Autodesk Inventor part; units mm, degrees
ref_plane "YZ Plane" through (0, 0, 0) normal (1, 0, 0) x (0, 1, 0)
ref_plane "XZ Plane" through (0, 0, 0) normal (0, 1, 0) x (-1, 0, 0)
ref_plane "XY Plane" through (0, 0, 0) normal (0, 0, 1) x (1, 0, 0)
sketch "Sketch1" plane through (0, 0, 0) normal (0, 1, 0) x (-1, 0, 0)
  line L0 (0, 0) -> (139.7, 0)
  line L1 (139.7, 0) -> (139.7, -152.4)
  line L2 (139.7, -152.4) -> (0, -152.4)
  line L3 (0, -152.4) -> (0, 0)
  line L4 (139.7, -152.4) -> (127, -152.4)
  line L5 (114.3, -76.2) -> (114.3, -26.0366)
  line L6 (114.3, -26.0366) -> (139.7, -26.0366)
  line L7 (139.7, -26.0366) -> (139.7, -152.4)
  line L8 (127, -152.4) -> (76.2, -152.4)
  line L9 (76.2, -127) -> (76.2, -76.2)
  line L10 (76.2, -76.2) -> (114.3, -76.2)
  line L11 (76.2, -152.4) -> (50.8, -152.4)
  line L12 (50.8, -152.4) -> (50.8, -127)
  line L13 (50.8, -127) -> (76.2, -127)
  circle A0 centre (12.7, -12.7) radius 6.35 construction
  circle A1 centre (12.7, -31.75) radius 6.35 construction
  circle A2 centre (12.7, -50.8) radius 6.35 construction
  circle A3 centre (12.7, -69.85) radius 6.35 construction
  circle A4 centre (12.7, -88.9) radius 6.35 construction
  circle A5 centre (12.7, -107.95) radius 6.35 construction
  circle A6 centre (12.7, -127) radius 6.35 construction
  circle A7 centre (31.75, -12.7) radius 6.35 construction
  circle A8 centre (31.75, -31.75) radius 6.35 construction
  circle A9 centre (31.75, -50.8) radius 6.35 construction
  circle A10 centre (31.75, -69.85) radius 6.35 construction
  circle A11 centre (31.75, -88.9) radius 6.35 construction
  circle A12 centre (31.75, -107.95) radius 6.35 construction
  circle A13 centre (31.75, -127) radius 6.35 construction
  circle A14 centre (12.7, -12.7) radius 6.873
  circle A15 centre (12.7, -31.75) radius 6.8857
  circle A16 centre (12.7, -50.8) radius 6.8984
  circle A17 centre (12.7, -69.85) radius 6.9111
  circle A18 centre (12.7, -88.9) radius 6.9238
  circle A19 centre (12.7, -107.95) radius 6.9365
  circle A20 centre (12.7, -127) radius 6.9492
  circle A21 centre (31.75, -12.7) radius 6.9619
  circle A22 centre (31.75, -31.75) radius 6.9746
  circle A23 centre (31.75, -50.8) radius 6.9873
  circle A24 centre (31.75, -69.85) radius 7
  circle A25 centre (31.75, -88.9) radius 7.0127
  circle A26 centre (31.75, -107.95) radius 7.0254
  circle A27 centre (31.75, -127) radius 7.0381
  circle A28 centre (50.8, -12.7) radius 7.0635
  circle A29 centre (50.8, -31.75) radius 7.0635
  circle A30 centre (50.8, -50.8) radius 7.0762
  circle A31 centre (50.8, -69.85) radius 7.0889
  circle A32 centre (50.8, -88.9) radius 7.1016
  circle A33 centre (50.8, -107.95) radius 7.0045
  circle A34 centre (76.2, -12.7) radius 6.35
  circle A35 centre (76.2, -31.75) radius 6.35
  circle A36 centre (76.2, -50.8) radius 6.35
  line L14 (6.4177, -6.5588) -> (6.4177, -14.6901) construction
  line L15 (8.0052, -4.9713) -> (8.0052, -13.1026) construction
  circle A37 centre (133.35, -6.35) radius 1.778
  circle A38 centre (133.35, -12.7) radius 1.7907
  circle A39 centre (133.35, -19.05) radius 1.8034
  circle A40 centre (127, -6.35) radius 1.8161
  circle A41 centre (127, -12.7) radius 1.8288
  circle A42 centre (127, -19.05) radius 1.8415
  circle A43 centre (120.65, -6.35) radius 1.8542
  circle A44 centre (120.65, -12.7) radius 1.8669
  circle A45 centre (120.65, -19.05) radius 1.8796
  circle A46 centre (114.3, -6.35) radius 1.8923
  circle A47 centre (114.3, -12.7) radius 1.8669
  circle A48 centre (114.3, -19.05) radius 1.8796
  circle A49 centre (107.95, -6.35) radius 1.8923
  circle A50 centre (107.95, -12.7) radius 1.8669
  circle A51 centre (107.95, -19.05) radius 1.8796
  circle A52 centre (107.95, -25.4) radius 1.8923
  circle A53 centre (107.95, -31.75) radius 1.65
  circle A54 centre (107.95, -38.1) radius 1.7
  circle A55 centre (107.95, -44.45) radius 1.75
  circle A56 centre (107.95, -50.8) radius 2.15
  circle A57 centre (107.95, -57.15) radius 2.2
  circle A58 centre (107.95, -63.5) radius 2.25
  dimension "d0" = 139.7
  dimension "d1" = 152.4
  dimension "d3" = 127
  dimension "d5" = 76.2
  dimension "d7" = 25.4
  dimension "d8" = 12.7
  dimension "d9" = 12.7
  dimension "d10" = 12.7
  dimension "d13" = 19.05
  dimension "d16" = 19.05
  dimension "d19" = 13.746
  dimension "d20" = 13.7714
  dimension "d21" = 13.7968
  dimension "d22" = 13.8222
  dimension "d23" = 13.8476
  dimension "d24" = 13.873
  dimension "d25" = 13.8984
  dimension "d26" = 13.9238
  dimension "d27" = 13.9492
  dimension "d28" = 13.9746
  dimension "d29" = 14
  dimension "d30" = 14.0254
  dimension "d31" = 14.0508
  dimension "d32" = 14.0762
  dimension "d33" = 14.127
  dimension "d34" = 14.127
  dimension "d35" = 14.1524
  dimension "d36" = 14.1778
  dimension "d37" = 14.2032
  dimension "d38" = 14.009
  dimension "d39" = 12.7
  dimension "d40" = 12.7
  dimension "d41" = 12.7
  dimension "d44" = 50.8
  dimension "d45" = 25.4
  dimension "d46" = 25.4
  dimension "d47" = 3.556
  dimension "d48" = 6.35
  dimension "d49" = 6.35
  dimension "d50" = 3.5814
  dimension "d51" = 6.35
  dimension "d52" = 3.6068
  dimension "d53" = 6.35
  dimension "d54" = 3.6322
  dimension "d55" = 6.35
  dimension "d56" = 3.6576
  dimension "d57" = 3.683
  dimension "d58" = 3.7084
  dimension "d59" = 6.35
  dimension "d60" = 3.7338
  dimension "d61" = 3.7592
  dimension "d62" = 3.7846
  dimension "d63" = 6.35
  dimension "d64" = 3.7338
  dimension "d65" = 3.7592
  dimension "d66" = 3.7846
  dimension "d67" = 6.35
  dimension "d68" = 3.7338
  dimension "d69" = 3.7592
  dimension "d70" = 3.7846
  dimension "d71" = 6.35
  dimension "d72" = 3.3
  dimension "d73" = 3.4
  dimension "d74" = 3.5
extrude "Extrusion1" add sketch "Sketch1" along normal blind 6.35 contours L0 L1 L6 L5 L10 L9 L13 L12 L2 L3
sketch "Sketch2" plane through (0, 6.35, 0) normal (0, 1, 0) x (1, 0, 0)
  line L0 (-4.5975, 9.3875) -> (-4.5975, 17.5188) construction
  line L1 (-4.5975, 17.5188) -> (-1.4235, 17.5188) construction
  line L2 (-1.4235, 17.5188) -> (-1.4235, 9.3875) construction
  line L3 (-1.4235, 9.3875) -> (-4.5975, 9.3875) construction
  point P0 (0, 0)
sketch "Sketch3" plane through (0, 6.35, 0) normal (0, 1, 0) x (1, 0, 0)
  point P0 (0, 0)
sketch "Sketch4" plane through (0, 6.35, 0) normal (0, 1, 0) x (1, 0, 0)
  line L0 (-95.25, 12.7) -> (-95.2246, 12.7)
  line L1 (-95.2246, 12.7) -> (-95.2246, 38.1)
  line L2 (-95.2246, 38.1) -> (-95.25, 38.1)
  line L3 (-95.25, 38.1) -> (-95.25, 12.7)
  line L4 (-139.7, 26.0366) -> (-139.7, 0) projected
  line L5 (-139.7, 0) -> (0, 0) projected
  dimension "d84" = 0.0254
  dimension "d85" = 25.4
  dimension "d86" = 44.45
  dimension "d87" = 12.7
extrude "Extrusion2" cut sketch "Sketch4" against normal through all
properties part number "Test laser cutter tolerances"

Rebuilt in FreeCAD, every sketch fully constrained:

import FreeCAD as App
import Part
import Sketcher
Q = App.Units.Quantity


def add_polygon(sketch, points):
    """Adds a closed chain of lines whose ends are joined by coincident constraints."""
    first, n = sketch.GeometryCount, len(points)
    for a, b in zip(points, points[1:] + points[:1]):
        sketch.addGeometry(Part.LineSegment(App.Vector(*a, 0), App.Vector(*b, 0)), False)
    for i in range(n):
        sketch.addConstraint(Sketcher.Constraint("Coincident", first + i, 2, first + (i + 1) % n, 1))

doc = App.newDocument("Part")
params = doc.addObject("Spreadsheet::Sheet", "Params")
for row, (alias, value) in enumerate([
    ("sketch1_diameter", "0.5 in"),
    ("sketch1_diameter2", "0.14 in"),
    ("sketch1_width", "2 in"),
    ("sketch1_width2", "1 in"),
    ("sketch1_height", "6 in"),
    ("pad1_length", "0.25 in"),
    ("sketch2_height", "1 in"),
    ("sketch2_width", "0.001 in"),
], start=1):
    params.set(f"A{row}", alias)
    params.set(f"B{row}", "=" + value)
    params.setAlias(f"B{row}", alias)

body = doc.addObject("PartDesign::Body", "Body")

# Sketch on XZ plane
sketch1 = body.newObject("Sketcher::SketchObject", "Sketch")
sketch1.AttachmentSupport = (doc.getObject("XZ_Plane"), [""])
sketch1.MapMode = "FlatFace"
add_polygon(sketch1, [(-139.7, 0), (0, 0), (0, -152.4), (-50.8, -152.4), (-50.8, -127), (-76.2, -127), (-76.2, -76.2), (-114.3, -76.2), (-114.3, -26.0366), (-139.7, -26.0366)])  # lines 0-9
sketch1.addGeometry(Part.Circle(App.Vector(-12.7, -127, 0), App.Vector(0, 0, 1), 6.9492), False)  # 10
sketch1.addGeometry(Part.Circle(App.Vector(-31.75, -127, 0), App.Vector(0, 0, 1), 7.0381), False)  # 11
sketch1.addGeometry(Part.Circle(App.Vector(-12.7, -107.95, 0), App.Vector(0, 0, 1), 6.9365), False)  # 12
sketch1.addGeometry(Part.Circle(App.Vector(-31.75, -107.95, 0), App.Vector(0, 0, 1), 7.0254), False)  # 13
sketch1.addGeometry(Part.Circle(App.Vector(-12.7, -88.9, 0), App.Vector(0, 0, 1), 6.9238), False)  # 14
sketch1.addGeometry(Part.Circle(App.Vector(-31.75, -88.9, 0), App.Vector(0, 0, 1), 7.0127), False)  # 15
sketch1.addGeometry(Part.Circle(App.Vector(-50.8, -107.95, 0), App.Vector(0, 0, 1), 7.0045), False)  # 16
sketch1.addGeometry(Part.Circle(App.Vector(-50.8, -88.9, 0), App.Vector(0, 0, 1), 7.1016), False)  # 17
sketch1.addGeometry(Part.Circle(App.Vector(-12.7, -69.85, 0), App.Vector(0, 0, 1), 6.9111), False)  # 18
sketch1.addGeometry(Part.Circle(App.Vector(-31.75, -69.85, 0), App.Vector(0, 0, 1), 7), False)  # 19
sketch1.addGeometry(Part.Circle(App.Vector(-12.7, -50.8, 0), App.Vector(0, 0, 1), 6.8984), False)  # 20
sketch1.addGeometry(Part.Circle(App.Vector(-31.75, -50.8, 0), App.Vector(0, 0, 1), 6.9873), False)  # 21
sketch1.addGeometry(Part.Circle(App.Vector(-50.8, -69.85, 0), App.Vector(0, 0, 1), 7.0889), False)  # 22
sketch1.addGeometry(Part.Circle(App.Vector(-50.8, -50.8, 0), App.Vector(0, 0, 1), 7.0762), False)  # 23
sketch1.addGeometry(Part.Circle(App.Vector(-12.7, -31.75, 0), App.Vector(0, 0, 1), 6.8857), False)  # 24
sketch1.addGeometry(Part.Circle(App.Vector(-31.75, -31.75, 0), App.Vector(0, 0, 1), 6.9746), False)  # 25
sketch1.addGeometry(Part.Circle(App.Vector(-12.7, -12.7, 0), App.Vector(0, 0, 1), 6.873), False)  # 26
sketch1.addGeometry(Part.Circle(App.Vector(-31.75, -12.7, 0), App.Vector(0, 0, 1), 6.9619), False)  # 27
sketch1.addGeometry(Part.Circle(App.Vector(-50.8, -31.75, 0), App.Vector(0, 0, 1), 7.0635), False)  # 28
sketch1.addGeometry(Part.Circle(App.Vector(-50.8, -12.7, 0), App.Vector(0, 0, 1), 7.0635), False)  # 29
sketch1.addGeometry(Part.Circle(App.Vector(-76.2, -50.8, 0), App.Vector(0, 0, 1), 6.35), False)  # 30
sketch1.addGeometry(Part.Circle(App.Vector(-107.95, -63.5, 0), App.Vector(0, 0, 1), 2.25), False)  # 31
sketch1.addGeometry(Part.Circle(App.Vector(-107.95, -57.15, 0), App.Vector(0, 0, 1), 2.2), False)  # 32
sketch1.addGeometry(Part.Circle(App.Vector(-107.95, -50.8, 0), App.Vector(0, 0, 1), 2.15), False)  # 33
sketch1.addGeometry(Part.Circle(App.Vector(-107.95, -44.45, 0), App.Vector(0, 0, 1), 1.75), False)  # 34
sketch1.addGeometry(Part.Circle(App.Vector(-76.2, -31.75, 0), App.Vector(0, 0, 1), 6.35), False)  # 35
sketch1.addGeometry(Part.Circle(App.Vector(-76.2, -12.7, 0), App.Vector(0, 0, 1), 6.35), False)  # 36
sketch1.addGeometry(Part.Circle(App.Vector(-107.95, -38.1, 0), App.Vector(0, 0, 1), 1.7), False)  # 37
sketch1.addGeometry(Part.Circle(App.Vector(-107.95, -31.75, 0), App.Vector(0, 0, 1), 1.65), False)  # 38
sketch1.addGeometry(Part.Circle(App.Vector(-107.95, -25.4, 0), App.Vector(0, 0, 1), 1.8923), False)  # 39
sketch1.addGeometry(Part.Circle(App.Vector(-107.95, -19.05, 0), App.Vector(0, 0, 1), 1.8796), False)  # 40
sketch1.addGeometry(Part.Circle(App.Vector(-107.95, -12.7, 0), App.Vector(0, 0, 1), 1.8669), False)  # 41
sketch1.addGeometry(Part.Circle(App.Vector(-114.3, -19.05, 0), App.Vector(0, 0, 1), 1.8796), False)  # 42
sketch1.addGeometry(Part.Circle(App.Vector(-120.65, -19.05, 0), App.Vector(0, 0, 1), 1.8796), False)  # 43
sketch1.addGeometry(Part.Circle(App.Vector(-114.3, -12.7, 0), App.Vector(0, 0, 1), 1.8669), False)  # 44
sketch1.addGeometry(Part.Circle(App.Vector(-120.65, -12.7, 0), App.Vector(0, 0, 1), 1.8669), False)  # 45
sketch1.addGeometry(Part.Circle(App.Vector(-107.95, -6.35, 0), App.Vector(0, 0, 1), 1.8923), False)  # 46
sketch1.addGeometry(Part.Circle(App.Vector(-114.3, -6.35, 0), App.Vector(0, 0, 1), 1.8923), False)  # 47
sketch1.addGeometry(Part.Circle(App.Vector(-120.65, -6.35, 0), App.Vector(0, 0, 1), 1.8542), False)  # 48
sketch1.addGeometry(Part.Circle(App.Vector(-127, -19.05, 0), App.Vector(0, 0, 1), 1.8415), False)  # 49
sketch1.addGeometry(Part.Circle(App.Vector(-127, -12.7, 0), App.Vector(0, 0, 1), 1.8288), False)  # 50
sketch1.addGeometry(Part.Circle(App.Vector(-133.35, -19.05, 0), App.Vector(0, 0, 1), 1.8034), False)  # 51
sketch1.addGeometry(Part.Circle(App.Vector(-133.35, -12.7, 0), App.Vector(0, 0, 1), 1.7907), False)  # 52
sketch1.addGeometry(Part.Circle(App.Vector(-127, -6.35, 0), App.Vector(0, 0, 1), 1.8161), False)  # 53
sketch1.addGeometry(Part.Circle(App.Vector(-133.35, -6.35, 0), App.Vector(0, 0, 1), 1.778), False)  # 54
sketch1.addConstraint([
    Sketcher.Constraint("Horizontal", 0),
    Sketcher.Constraint("Vertical", 1),
    Sketcher.Constraint("Horizontal", 2),
    Sketcher.Constraint("Vertical", 3),
    Sketcher.Constraint("Horizontal", 4),
    Sketcher.Constraint("Vertical", 5),
    Sketcher.Constraint("Horizontal", 6),
    Sketcher.Constraint("Vertical", 7),
    Sketcher.Constraint("Horizontal", 8),
    Sketcher.Constraint("Vertical", 9),
    Sketcher.Constraint("Coincident", 0, 2, -1, 1),
    Sketcher.Constraint("Equal", 28, 29),
    Sketcher.Constraint("Equal", 30, 35),
    Sketcher.Constraint("Equal", 35, 36),
    Sketcher.Constraint("Equal", 40, 42),
    Sketcher.Constraint("Equal", 42, 43),
    Sketcher.Constraint("Equal", 41, 44),
    Sketcher.Constraint("Equal", 44, 45),
    Sketcher.Constraint("Equal", 39, 46),
    Sketcher.Constraint("Equal", 46, 47),
    Sketcher.Constraint("Horizontal", 10, 3, 11, 3),
    Sketcher.Constraint("Horizontal", 12, 3, 13, 3),
    Sketcher.Constraint("Horizontal", 14, 3, 15, 3),
    Sketcher.Constraint("Horizontal", 13, 3, 16, 3),
    Sketcher.Constraint("Horizontal", 15, 3, 17, 3),
    Sketcher.Constraint("Horizontal", 18, 3, 19, 3),
    Sketcher.Constraint("Horizontal", 20, 3, 21, 3),
    Sketcher.Constraint("Horizontal", 19, 3, 22, 3),
    Sketcher.Constraint("Horizontal", 21, 3, 23, 3),
    Sketcher.Constraint("Horizontal", 24, 3, 25, 3),
    Sketcher.Constraint("Horizontal", 26, 3, 27, 3),
    Sketcher.Constraint("Horizontal", 25, 3, 28, 3),
    Sketcher.Constraint("Horizontal", 27, 3, 29, 3),
    Sketcher.Constraint("Horizontal", 23, 3, 30, 3),
    Sketcher.Constraint("Horizontal", 30, 3, 33, 3),
    Sketcher.Constraint("Horizontal", 28, 3, 35, 3),
    Sketcher.Constraint("Horizontal", 29, 3, 36, 3),
    Sketcher.Constraint("Horizontal", 35, 3, 38, 3),
    Sketcher.Constraint("Horizontal", 36, 3, 41, 3),
    Sketcher.Constraint("Horizontal", 40, 3, 42, 3),
    Sketcher.Constraint("Horizontal", 42, 3, 43, 3),
    Sketcher.Constraint("Horizontal", 41, 3, 44, 3),
    Sketcher.Constraint("Horizontal", 44, 3, 45, 3),
    Sketcher.Constraint("Horizontal", 46, 3, 47, 3),
    Sketcher.Constraint("Horizontal", 47, 3, 48, 3),
    Sketcher.Constraint("Horizontal", 43, 3, 49, 3),
    Sketcher.Constraint("Horizontal", 45, 3, 50, 3),
    Sketcher.Constraint("Horizontal", 49, 3, 51, 3),
    Sketcher.Constraint("Horizontal", 50, 3, 52, 3),
    Sketcher.Constraint("Horizontal", 48, 3, 53, 3),
    Sketcher.Constraint("Horizontal", 53, 3, 54, 3),
    Sketcher.Constraint("Horizontal", 11, 3, 3, 2),
    Sketcher.Constraint("Vertical", 10, 3, 12, 3),
    Sketcher.Constraint("Vertical", 11, 3, 13, 3),
    Sketcher.Constraint("Vertical", 12, 3, 14, 3),
    Sketcher.Constraint("Vertical", 13, 3, 15, 3),
    Sketcher.Constraint("Vertical", 16, 3, 17, 3),
    Sketcher.Constraint("Vertical", 14, 3, 18, 3),
    Sketcher.Constraint("Vertical", 15, 3, 19, 3),
    Sketcher.Constraint("Vertical", 18, 3, 20, 3),
    Sketcher.Constraint("Vertical", 19, 3, 21, 3),
    Sketcher.Constraint("Vertical", 17, 3, 22, 3),
    Sketcher.Constraint("Vertical", 22, 3, 23, 3),
    Sketcher.Constraint("Vertical", 20, 3, 24, 3),
    Sketcher.Constraint("Vertical", 21, 3, 25, 3),
    Sketcher.Constraint("Vertical", 24, 3, 26, 3),
    Sketcher.Constraint("Vertical", 25, 3, 27, 3),
    Sketcher.Constraint("Vertical", 23, 3, 28, 3),
    Sketcher.Constraint("Vertical", 28, 3, 29, 3),
    Sketcher.Constraint("Vertical", 31, 3, 32, 3),
    Sketcher.Constraint("Vertical", 32, 3, 33, 3),
    Sketcher.Constraint("Vertical", 33, 3, 34, 3),
    Sketcher.Constraint("Vertical", 30, 3, 35, 3),
    Sketcher.Constraint("Vertical", 35, 3, 36, 3),
    Sketcher.Constraint("Vertical", 34, 3, 37, 3),
    Sketcher.Constraint("Vertical", 37, 3, 38, 3),
    Sketcher.Constraint("Vertical", 38, 3, 39, 3),
    Sketcher.Constraint("Vertical", 39, 3, 40, 3),
    Sketcher.Constraint("Vertical", 40, 3, 41, 3),
    Sketcher.Constraint("Vertical", 42, 3, 44, 3),
    Sketcher.Constraint("Vertical", 43, 3, 45, 3),
    Sketcher.Constraint("Vertical", 41, 3, 46, 3),
    Sketcher.Constraint("Vertical", 44, 3, 47, 3),
    Sketcher.Constraint("Vertical", 45, 3, 48, 3),
    Sketcher.Constraint("Vertical", 49, 3, 50, 3),
    Sketcher.Constraint("Vertical", 51, 3, 52, 3),
    Sketcher.Constraint("Vertical", 50, 3, 53, 3),
    Sketcher.Constraint("Vertical", 52, 3, 54, 3),
    Sketcher.Constraint("Vertical", 29, 3, 2, 2),
    Sketcher.Constraint("Vertical", 36, 3, 4, 2),
    Sketcher.Constraint("Vertical", 47, 3, 6, 2),
    Sketcher.Constraint("Equal", 4, 8),
    Sketcher.Constraint("Equal", 8, 3),
    Sketcher.Constraint("Equal", 2, 5),
    Sketcher.Constraint("Diameter", 30, Q("0.5 in")),
    Sketcher.Constraint("Diameter", 54, Q("0.14 in")),
    Sketcher.Constraint("DistanceX", 2, 2, 2, 1, Q("2 in")),
    Sketcher.Constraint("DistanceX", 4, 2, 4, 1, Q("1 in")),
    Sketcher.Constraint("DistanceY", 1, 2, 1, 1, Q("6 in")),
    Sketcher.Constraint("Diameter", 39, Q("0.149 in")),
    Sketcher.Constraint("Diameter", 40, Q("0.148 in")),
    Sketcher.Constraint("Diameter", 41, Q("0.147 in")),
    Sketcher.Constraint("Diameter", 48, Q("0.146 in")),
    Sketcher.Constraint("Diameter", 49, Q("0.145 in")),
    Sketcher.Constraint("Diameter", 50, Q("0.144 in")),
    Sketcher.Constraint("Diameter", 51, Q("0.142 in")),
    Sketcher.Constraint("Diameter", 52, Q("0.141 in")),
    Sketcher.Constraint("Diameter", 53, Q("0.143 in")),
    Sketcher.Constraint("DistanceX", 0, 1, 0, 2, Q("5.5 in")),
    Sketcher.Constraint("DistanceY", 20, 3, -1, 1, Q("2 in")),
    Sketcher.Constraint("DistanceY", 39, 3, -1, 1, Q("1 in")),
    Sketcher.Constraint("DistanceX", 49, 3, -1, 1, Q("5 in")),
    Sketcher.Constraint("DistanceY", 17, 3, 31, 3, Q("1 in")),
    Sketcher.Constraint("DistanceY", 32, 3, 28, 3, Q("1 in")),
    Sketcher.Constraint("DistanceY", 31, 3, 37, 3, Q("1 in")),
    Sketcher.Constraint("DistanceY", 34, 3, 40, 3, Q("1 in")),
    Sketcher.Constraint("DistanceY", 37, 3, 41, 3, Q("1 in")),
    Sketcher.Constraint("Diameter", 34, Q("0.1378 in")),
    Sketcher.Constraint("DistanceX", 10, 3, -1, 1, Q("0.5 in")),
    Sketcher.Constraint("DistanceY", 26, 3, -1, 1, Q("0.5 in")),
    Sketcher.Constraint("DistanceY", 22, 3, 32, 3, Q("0.5 in")),
    Sketcher.Constraint("DistanceY", 32, 3, 34, 3, Q("0.5 in")),
    Sketcher.Constraint("DistanceX", 43, 3, 40, 3, Q("0.5 in")),
    Sketcher.Constraint("DistanceY", 40, 3, 46, 3, Q("0.5 in")),
    Sketcher.Constraint("DistanceX", 51, 3, 43, 3, Q("0.5 in")),
    Sketcher.Constraint("Diameter", 10, Q("13.8984 mm")),
    Sketcher.Constraint("Diameter", 11, Q("14.0762 mm")),
    Sketcher.Constraint("Diameter", 12, Q("13.873 mm")),
    Sketcher.Constraint("Diameter", 13, Q("14.0508 mm")),
    Sketcher.Constraint("Diameter", 14, Q("13.8476 mm")),
    Sketcher.Constraint("Diameter", 15, Q("14.0254 mm")),
    Sketcher.Constraint("Diameter", 16, Q("14.009 mm")),
    Sketcher.Constraint("Diameter", 17, Q("14.2032 mm")),
    Sketcher.Constraint("Diameter", 18, Q("13.8222 mm")),
    Sketcher.Constraint("Diameter", 19, Q("14 mm")),
    Sketcher.Constraint("Diameter", 20, Q("13.7968 mm")),
    Sketcher.Constraint("Diameter", 21, Q("13.9746 mm")),
    Sketcher.Constraint("Diameter", 22, Q("14.1778 mm")),
    Sketcher.Constraint("Diameter", 23, Q("14.1524 mm")),
    Sketcher.Constraint("Diameter", 24, Q("13.7714 mm")),
    Sketcher.Constraint("Diameter", 25, Q("13.9492 mm")),
    Sketcher.Constraint("Diameter", 26, Q("13.746 mm")),
    Sketcher.Constraint("Diameter", 27, Q("13.9238 mm")),
    Sketcher.Constraint("Diameter", 28, Q("14.127 mm")),
    Sketcher.Constraint("Diameter", 37, Q("3.4 mm")),
    Sketcher.Constraint("Diameter", 38, Q("3.3 mm")),
    Sketcher.Constraint("DistanceY", 40, 3, -1, 1, Q("0.75 in")),
    Sketcher.Constraint("DistanceX", 11, 3, 10, 3, Q("0.75 in")),
    Sketcher.Constraint("DistanceY", 10, 3, 12, 3, Q("0.75 in")),
    Sketcher.Constraint("DistanceX", 42, 3, 40, 3, Q("0.25 in")),
    Sketcher.Constraint("Diameter", 33, Q("0.1693 in")),
    Sketcher.Constraint("Diameter", 31, Q("4.5 mm")),
    Sketcher.Constraint("Diameter", 32, Q("4.4 mm")),
    Sketcher.Constraint("DistanceY", 7, 1, 7, 2, Q("50.1634 mm")),
])
sketch1.setExpression("Constraints[104]", "Params.sketch1_diameter")
sketch1.setExpression("Constraints[105]", "Params.sketch1_diameter2")
sketch1.setExpression("Constraints[106]", "Params.sketch1_width")
sketch1.setExpression("Constraints[107]", "Params.sketch1_width2")
sketch1.setExpression("Constraints[108]", "Params.sketch1_height")
pad1 = body.newObject("PartDesign::Pad", "Pad")
pad1.Profile = sketch1
pad1.setExpression("Length", "Params.pad1_length")
pad1.Reversed = True

# Sketch on XZ plane
sketch2 = body.newObject("Sketcher::SketchObject", "Sketch001")
sketch2.AttachmentSupport = (doc.getObject("XZ_Plane"), [""])
sketch2.MapMode = "FlatFace"
sketch2.AttachmentOffset = App.Placement(App.Vector(0, 0, -0.25 * 25.4), App.Rotation())
add_polygon(sketch2, [(-95.25, -38.1), (-95.25, -12.7), (-95.2246, -12.7), (-95.2246, -38.1)])  # lines 0-3
sketch2.addConstraint([
    Sketcher.Constraint("Vertical", 0),
    Sketcher.Constraint("Horizontal", 1),
    Sketcher.Constraint("Vertical", 2),
    Sketcher.Constraint("Horizontal", 3),
    Sketcher.Constraint("DistanceY", 0, 1, 0, 2, Q("1 in")),
    Sketcher.Constraint("DistanceY", 0, 2, -1, 1, Q("0.5 in")),
    Sketcher.Constraint("DistanceX", 1, 1, 1, 2, Q("0.001 in")),
    Sketcher.Constraint("DistanceX", 0, 2, -1, 1, Q("3.75 in")),
])
sketch2.setExpression("Constraints[8]", "Params.sketch2_height")
sketch2.setExpression("Constraints[10]", "Params.sketch2_width")
pocket1 = body.newObject("PartDesign::Pocket", "Pocket")
pocket1.Profile = sketch2
pocket1.Type = "ThroughAll"
pocket1.Reversed = True

doc.recompute()
